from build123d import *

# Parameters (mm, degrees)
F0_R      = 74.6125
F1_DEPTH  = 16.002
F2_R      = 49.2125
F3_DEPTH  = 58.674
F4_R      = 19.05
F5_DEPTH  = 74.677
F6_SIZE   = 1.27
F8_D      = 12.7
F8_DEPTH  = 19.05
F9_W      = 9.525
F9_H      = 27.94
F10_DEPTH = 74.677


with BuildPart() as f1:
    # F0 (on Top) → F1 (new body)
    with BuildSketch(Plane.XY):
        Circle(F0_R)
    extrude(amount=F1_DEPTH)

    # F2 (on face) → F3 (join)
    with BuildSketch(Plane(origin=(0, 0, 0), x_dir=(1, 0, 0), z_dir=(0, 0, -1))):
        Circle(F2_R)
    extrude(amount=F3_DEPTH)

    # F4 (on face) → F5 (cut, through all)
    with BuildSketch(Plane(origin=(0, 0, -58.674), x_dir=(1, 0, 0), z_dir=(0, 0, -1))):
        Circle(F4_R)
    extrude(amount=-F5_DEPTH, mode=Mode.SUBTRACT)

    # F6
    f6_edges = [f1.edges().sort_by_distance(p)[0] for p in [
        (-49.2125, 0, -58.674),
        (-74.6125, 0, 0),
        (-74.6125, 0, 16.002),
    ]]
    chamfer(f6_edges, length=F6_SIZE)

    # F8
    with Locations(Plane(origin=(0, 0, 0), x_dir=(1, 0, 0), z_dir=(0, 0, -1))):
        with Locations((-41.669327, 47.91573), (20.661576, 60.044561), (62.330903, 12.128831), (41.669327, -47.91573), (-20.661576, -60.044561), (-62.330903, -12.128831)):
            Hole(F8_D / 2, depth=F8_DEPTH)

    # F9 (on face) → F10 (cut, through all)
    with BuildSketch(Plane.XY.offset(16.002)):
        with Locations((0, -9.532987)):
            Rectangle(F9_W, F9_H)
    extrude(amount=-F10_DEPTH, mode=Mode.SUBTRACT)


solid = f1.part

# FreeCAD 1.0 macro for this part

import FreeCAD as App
import Part
import Sketcher
Q = App.Units.Quantity


def edges_at(feature, points):
    """Names of the edges that pass closest to the given points."""
    edges = feature.Shape.Edges
    near = lambda p: min(range(len(edges)), key=lambda i: edges[i].distToShape(Part.Vertex(*p))[0])
    return sorted({f"Edge{near(p) + 1}" for p in points})

doc = App.newDocument("Part")
body = doc.addObject("PartDesign::Body", "Body")

# Sketch on XY plane
sketch1 = body.newObject("Sketcher::SketchObject", "Sketch")
sketch1.AttachmentSupport = (doc.getObject("XY_Plane"), [""])
sketch1.MapMode = "FlatFace"
sketch1.addGeometry(Part.Circle(App.Vector(0, 0, 0), App.Vector(0, 0, 1), 74.6125), False)
sketch1.addConstraint([
    Sketcher.Constraint("Coincident", 0, 3, -1, 1),
    Sketcher.Constraint("Diameter", 0, Q("5.875 in")),
])
pad1 = body.newObject("PartDesign::Pad", "Pad")
pad1.Profile = sketch1
pad1.Length = Q("0.63 in")

# Sketch on XY plane
sketch2 = body.newObject("Sketcher::SketchObject", "Sketch001")
sketch2.AttachmentSupport = (doc.getObject("XY_Plane"), [""])
sketch2.MapMode = "FlatFace"
sketch2.addGeometry(Part.Circle(App.Vector(0, 0, 0), App.Vector(0, 0, 1), 49.2125), False)
sketch2.addConstraint([
    Sketcher.Constraint("Coincident", 0, 3, -1, 1),
    Sketcher.Constraint("Diameter", 0, Q("3.875 in")),
])
pad2 = body.newObject("PartDesign::Pad", "Pad001")
pad2.Profile = sketch2
pad2.Length = Q("2.31 in")
pad2.Reversed = True

# Sketch on XY plane
sketch3 = body.newObject("Sketcher::SketchObject", "Sketch002")
sketch3.AttachmentSupport = (doc.getObject("XY_Plane"), [""])
sketch3.MapMode = "FlatFace"
sketch3.AttachmentOffset = App.Placement(App.Vector(0, 0, -2.31 * 25.4), App.Rotation())
sketch3.addGeometry(Part.Circle(App.Vector(0, 0, 0), App.Vector(0, 0, 1), 19.05), False)
sketch3.addConstraint([
    Sketcher.Constraint("Coincident", 0, 3, -1, 1),
    Sketcher.Constraint("Diameter", 0, Q("1.5 in")),
])
pocket1 = body.newObject("PartDesign::Pocket", "Pocket")
pocket1.Profile = sketch3
pocket1.Type = "ThroughAll"
pocket1.Reversed = True
doc.recompute()

chamfer = body.newObject("PartDesign::Chamfer", "Chamfer")
chamfer.Base = (pocket1, edges_at(pocket1, [(-49.212, 0, -58.674), (-74.612, 0, 0), (-74.612, 0, 16.002)]))
chamfer.Size = Q("0.05 in")

# Sketch on XY plane
sketch4 = body.newObject("Sketcher::SketchObject", "Sketch003")
sketch4.AttachmentSupport = (doc.getObject("XY_Plane"), [""])
sketch4.MapMode = "FlatFace"
sketch4.addGeometry([
    Part.Circle(App.Vector(-41.669327, -47.91573, 0), App.Vector(0, 0, 1), 6.35),  # 0
    Part.Circle(App.Vector(20.661576, -60.044561, 0), App.Vector(0, 0, 1), 6.35),  # 1
    Part.Circle(App.Vector(62.330903, -12.128831, 0), App.Vector(0, 0, 1), 6.35),  # 2
    Part.Circle(App.Vector(41.669327, 47.91573, 0), App.Vector(0, 0, 1), 6.35),  # 3
    Part.Circle(App.Vector(-20.661576, 60.044561, 0), App.Vector(0, 0, 1), 6.35),  # 4
    Part.Circle(App.Vector(-62.330903, 12.128831, 0), App.Vector(0, 0, 1), 6.35),  # 5
], False)
sketch4.addConstraint([
    Sketcher.Constraint("Equal", 0, 1),
    Sketcher.Constraint("Equal", 1, 2),
    Sketcher.Constraint("Equal", 2, 3),
    Sketcher.Constraint("Equal", 3, 4),
    Sketcher.Constraint("Equal", 4, 5),
    Sketcher.Constraint("Symmetric", 0, 3, 3, 3, -1, 1),
    Sketcher.Constraint("Symmetric", 1, 3, 4, 3, -1, 1),
    Sketcher.Constraint("Symmetric", 2, 3, 5, 3, -1, 1),
    Sketcher.Constraint("Diameter", 0, Q("0.5 in")),
    Sketcher.Constraint("DistanceY", 0, 3, 2, 3, Q("35.786899 mm")),
    Sketcher.Constraint("DistanceY", 0, 3, -1, 1, Q("47.91573 mm")),
    Sketcher.Constraint("DistanceY", 1, 3, -1, 1, Q("60.044561 mm")),
    Sketcher.Constraint("DistanceX", 0, 3, 2, 3, Q("104.00023 mm")),
    Sketcher.Constraint("DistanceX", 1, 3, 3, 3, Q("21.007751 mm")),
    Sketcher.Constraint("DistanceX", 0, 3, -1, 1, Q("41.669327 mm")),
])
doc.recompute()
hole = body.newObject("PartDesign::Hole", "Hole")
hole.Profile = sketch4
hole.ThreadType = "None"
hole.Diameter = Q("0.5 in")
hole.DepthType = "Dimension"
hole.Depth = Q("0.75 in")
hole.DrillPoint = "Flat"
hole.Reversed = True

# Sketch on XY plane
sketch5 = body.newObject("Sketcher::SketchObject", "Sketch004")
sketch5.AttachmentSupport = (doc.getObject("XY_Plane"), [""])
sketch5.MapMode = "FlatFace"
sketch5.AttachmentOffset = App.Placement(App.Vector(0, 0, 0.63 * 25.4), App.Rotation())
sketch5.addGeometry([
    Part.LineSegment(App.Vector(-4.7625, 4.437013, 0), App.Vector(-4.7625, -23.502987, 0)),
    Part.LineSegment(App.Vector(-4.7625, -23.502987, 0), App.Vector(4.7625, -23.502987, 0)),
    Part.LineSegment(App.Vector(4.7625, -23.502987, 0), App.Vector(4.7625, 4.437013, 0)),
    Part.LineSegment(App.Vector(4.7625, 4.437013, 0), App.Vector(-4.7625, 4.437013, 0)),
], False)
sketch5.addConstraint([
    Sketcher.Constraint("Coincident", 0, 2, 1, 1),
    Sketcher.Constraint("Coincident", 1, 2, 2, 1),
    Sketcher.Constraint("Coincident", 2, 2, 3, 1),
    Sketcher.Constraint("Coincident", 3, 2, 0, 1),
    Sketcher.Constraint("Vertical", 0),
    Sketcher.Constraint("Horizontal", 1),
    Sketcher.Constraint("Vertical", 2),
    Sketcher.Constraint("Horizontal", 3),
    Sketcher.Constraint("DistanceY", 0, 2, 0, 1, Q("1.1 in")),
    Sketcher.Constraint("DistanceX", 1, 1, 1, 2, Q("0.375 in")),
    Sketcher.Constraint("DistanceX", 0, 2, -1, 1, Q("0.1875 in")),
    Sketcher.Constraint("DistanceY", 0, 2, -1, 1, Q("23.502987 mm")),
])
pocket2 = body.newObject("PartDesign::Pocket", "Pocket001")
pocket2.Profile = sketch5
pocket2.Type = "ThroughAll"

doc.recompute()
